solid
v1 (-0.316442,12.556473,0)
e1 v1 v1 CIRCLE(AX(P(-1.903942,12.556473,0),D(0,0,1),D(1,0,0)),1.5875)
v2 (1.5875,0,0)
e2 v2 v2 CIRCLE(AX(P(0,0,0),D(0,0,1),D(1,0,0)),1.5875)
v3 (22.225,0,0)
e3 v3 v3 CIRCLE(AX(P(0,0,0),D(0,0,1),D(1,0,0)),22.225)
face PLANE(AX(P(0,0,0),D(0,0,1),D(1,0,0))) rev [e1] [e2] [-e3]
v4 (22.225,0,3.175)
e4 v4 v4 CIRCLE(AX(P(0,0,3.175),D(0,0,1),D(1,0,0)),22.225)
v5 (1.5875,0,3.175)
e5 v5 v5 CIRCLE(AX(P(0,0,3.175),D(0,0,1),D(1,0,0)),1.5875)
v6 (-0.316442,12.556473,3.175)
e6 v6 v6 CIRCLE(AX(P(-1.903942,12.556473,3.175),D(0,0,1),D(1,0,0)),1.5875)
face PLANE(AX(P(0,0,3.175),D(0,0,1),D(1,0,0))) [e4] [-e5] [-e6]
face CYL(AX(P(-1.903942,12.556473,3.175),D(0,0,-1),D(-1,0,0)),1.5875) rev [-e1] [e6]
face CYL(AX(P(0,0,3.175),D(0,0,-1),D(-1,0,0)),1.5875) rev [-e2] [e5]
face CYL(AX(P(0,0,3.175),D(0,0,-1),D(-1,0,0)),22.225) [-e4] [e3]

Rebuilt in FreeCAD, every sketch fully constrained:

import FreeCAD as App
import Part
import Sketcher

V = App.Vector
Q = App.Units.Quantity

doc = App.newDocument("Part")
body = doc.addObject("PartDesign::Body", "Body")

# Sketch on XY plane
sketch1 = body.newObject("Sketcher::SketchObject", "Sketch")
sketch1.AttachmentSupport = (doc.getObject("XY_Plane"), [""])
sketch1.MapMode = "FlatFace"
sketch1.addGeometry(Part.Circle(V(0, 0, 0), V(0, 0, 1), 22.2), False)
sketch1.addGeometry(Part.Circle(V(0, 0, 0), V(0, 0, 1), 1.6), False)
sketch1.addGeometry(Part.Circle(V(-1.9, 12.6, 0), V(0, 0, 1), 1.6), False)
sketch1.addConstraint(Sketcher.Constraint("Coincident", 0, 3, -1, 1))
sketch1.addConstraint(Sketcher.Constraint("Coincident", 1, 3, -1, 1))
sketch1.addConstraint(Sketcher.Constraint("Equal", 1, 2))
sketch1.addConstraint(Sketcher.Constraint("Diameter", 0, Q("1.75 in")))
sketch1.addConstraint(Sketcher.Constraint("Diameter", 1, Q("0.125 in")))
sketch1.addConstraint(Sketcher.Constraint("DistanceX", 2, 3, -1, 1, Q("1.903942 mm")))
sketch1.addConstraint(Sketcher.Constraint("DistanceY", -1, 1, 2, 3, Q("12.556473 mm")))
pad1 = body.newObject("PartDesign::Pad", "Pad")
pad1.Profile = sketch1
pad1.Length = Q("0.125 in")

doc.recompute()
